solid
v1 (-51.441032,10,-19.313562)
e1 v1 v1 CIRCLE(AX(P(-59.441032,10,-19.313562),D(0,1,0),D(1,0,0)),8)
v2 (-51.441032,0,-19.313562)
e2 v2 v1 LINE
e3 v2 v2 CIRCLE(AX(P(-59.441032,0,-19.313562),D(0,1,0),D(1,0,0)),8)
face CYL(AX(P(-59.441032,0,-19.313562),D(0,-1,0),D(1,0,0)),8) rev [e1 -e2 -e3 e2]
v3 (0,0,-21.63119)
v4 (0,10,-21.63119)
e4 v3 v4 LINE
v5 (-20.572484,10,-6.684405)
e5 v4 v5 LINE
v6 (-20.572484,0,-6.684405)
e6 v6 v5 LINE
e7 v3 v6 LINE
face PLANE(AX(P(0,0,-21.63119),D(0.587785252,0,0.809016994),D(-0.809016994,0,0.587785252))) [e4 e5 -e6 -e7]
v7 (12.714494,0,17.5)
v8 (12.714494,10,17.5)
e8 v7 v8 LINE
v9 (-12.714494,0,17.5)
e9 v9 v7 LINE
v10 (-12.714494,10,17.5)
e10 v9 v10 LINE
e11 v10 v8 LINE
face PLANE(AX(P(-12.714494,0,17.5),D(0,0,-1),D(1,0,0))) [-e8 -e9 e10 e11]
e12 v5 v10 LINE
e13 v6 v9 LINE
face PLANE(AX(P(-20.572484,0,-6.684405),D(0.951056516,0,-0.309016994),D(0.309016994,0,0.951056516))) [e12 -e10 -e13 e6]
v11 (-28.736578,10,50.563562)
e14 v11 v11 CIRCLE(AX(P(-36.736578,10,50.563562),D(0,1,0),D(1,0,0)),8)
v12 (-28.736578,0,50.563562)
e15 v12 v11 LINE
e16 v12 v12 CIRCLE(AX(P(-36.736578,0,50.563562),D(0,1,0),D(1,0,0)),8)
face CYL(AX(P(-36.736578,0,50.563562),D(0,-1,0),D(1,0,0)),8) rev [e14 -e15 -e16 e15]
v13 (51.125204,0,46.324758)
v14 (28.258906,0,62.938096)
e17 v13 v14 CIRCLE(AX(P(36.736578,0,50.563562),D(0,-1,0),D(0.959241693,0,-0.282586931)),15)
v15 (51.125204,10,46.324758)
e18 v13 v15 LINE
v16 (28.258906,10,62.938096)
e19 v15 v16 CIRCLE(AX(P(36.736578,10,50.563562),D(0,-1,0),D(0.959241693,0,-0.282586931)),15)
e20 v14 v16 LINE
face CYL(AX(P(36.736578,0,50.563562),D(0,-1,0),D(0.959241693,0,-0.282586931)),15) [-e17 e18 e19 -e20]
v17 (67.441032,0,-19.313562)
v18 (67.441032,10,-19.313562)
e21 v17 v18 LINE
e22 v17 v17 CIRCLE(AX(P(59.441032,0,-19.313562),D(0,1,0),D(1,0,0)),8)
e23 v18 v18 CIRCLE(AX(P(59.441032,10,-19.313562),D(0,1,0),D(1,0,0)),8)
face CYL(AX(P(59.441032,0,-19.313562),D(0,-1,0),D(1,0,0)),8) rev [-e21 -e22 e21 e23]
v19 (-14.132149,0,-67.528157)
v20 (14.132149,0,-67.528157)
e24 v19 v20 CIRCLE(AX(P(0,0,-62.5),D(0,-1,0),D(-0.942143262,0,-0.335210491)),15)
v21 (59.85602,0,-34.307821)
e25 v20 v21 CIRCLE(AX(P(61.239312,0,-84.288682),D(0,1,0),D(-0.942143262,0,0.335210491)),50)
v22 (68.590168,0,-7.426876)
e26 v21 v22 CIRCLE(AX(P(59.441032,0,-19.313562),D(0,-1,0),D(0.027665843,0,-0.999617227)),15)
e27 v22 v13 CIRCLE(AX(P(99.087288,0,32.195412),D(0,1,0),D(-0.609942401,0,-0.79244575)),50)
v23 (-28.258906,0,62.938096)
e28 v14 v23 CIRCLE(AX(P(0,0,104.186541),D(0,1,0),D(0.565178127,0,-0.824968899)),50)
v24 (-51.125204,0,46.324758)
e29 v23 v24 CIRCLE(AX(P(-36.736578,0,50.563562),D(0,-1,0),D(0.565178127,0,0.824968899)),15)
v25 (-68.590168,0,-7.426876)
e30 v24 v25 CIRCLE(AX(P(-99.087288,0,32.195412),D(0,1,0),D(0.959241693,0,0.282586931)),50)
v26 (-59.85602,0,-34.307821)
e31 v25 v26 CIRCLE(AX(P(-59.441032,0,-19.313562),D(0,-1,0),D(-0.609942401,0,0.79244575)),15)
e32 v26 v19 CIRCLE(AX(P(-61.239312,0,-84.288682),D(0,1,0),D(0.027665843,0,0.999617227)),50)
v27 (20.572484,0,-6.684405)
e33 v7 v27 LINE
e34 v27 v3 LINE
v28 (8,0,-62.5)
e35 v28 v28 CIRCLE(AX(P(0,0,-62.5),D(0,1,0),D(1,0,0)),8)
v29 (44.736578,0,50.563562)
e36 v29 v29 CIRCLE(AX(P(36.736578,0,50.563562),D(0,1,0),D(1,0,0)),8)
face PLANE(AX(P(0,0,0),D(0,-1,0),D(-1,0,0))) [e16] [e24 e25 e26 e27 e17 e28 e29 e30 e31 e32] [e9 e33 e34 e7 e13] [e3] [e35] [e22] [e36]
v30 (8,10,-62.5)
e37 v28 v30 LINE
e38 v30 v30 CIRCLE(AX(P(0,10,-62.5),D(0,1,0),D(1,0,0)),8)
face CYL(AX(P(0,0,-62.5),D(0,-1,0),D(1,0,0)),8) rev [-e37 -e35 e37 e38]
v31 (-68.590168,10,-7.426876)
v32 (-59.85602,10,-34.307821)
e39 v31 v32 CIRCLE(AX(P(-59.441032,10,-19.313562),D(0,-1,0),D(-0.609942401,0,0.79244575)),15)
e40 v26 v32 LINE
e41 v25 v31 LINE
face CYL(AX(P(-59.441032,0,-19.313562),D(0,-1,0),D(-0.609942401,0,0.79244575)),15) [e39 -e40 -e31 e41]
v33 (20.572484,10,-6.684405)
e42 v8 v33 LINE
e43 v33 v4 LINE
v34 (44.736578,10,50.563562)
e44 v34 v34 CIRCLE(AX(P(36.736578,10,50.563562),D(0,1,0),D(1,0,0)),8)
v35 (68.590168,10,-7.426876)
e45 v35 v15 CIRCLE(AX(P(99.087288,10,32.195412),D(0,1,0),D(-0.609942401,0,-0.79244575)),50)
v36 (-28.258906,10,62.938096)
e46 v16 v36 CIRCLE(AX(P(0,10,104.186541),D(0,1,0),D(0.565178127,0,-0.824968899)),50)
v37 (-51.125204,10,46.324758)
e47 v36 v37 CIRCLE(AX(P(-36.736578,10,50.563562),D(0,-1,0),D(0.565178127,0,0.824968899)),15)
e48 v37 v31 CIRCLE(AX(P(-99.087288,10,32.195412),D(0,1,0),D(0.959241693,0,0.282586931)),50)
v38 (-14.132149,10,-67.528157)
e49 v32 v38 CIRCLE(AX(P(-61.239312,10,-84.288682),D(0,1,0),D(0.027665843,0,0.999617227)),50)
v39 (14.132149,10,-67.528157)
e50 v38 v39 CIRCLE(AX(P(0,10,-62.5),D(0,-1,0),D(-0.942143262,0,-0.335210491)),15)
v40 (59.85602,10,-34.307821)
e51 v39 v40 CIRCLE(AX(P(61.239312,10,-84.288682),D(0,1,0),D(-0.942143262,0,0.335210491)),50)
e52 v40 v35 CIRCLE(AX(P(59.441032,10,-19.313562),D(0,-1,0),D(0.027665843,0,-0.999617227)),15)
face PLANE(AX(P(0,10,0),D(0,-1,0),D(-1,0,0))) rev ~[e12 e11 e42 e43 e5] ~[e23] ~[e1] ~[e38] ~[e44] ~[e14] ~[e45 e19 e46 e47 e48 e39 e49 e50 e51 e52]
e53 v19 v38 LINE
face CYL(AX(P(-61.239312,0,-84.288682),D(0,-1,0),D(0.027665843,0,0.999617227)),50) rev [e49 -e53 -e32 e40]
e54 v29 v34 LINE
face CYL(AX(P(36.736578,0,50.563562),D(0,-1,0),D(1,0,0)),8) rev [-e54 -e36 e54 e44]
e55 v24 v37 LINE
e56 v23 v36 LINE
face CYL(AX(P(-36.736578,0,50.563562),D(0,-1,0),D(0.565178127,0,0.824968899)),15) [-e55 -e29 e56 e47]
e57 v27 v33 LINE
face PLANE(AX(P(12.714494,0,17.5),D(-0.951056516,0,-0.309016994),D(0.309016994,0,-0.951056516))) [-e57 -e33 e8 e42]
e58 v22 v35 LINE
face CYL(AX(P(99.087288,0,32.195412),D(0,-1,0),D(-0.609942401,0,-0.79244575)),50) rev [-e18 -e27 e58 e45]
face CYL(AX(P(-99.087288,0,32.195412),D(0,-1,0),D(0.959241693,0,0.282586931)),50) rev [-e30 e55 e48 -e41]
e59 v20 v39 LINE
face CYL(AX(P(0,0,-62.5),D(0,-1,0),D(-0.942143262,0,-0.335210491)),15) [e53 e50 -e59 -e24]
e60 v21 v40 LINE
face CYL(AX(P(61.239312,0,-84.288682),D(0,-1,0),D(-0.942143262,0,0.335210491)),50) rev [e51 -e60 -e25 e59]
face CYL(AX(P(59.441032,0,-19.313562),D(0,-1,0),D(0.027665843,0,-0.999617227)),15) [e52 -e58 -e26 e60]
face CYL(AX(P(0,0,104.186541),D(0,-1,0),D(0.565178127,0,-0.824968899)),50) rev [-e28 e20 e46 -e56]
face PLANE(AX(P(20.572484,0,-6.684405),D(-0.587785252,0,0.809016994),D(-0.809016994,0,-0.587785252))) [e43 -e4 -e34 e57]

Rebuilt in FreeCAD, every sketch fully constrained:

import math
import FreeCAD as App
import Part
import Sketcher
Q = App.Units.Quantity


def add_polygon(sketch, points):
    """Adds a closed chain of lines whose ends are joined by coincident constraints."""
    first, n = sketch.GeometryCount, len(points)
    for a, b in zip(points, points[1:] + points[:1]):
        sketch.addGeometry(Part.LineSegment(App.Vector(*a, 0), App.Vector(*b, 0)), False)
    for i in range(n):
        sketch.addConstraint(Sketcher.Constraint("Coincident", first + i, 2, first + (i + 1) % n, 1))

doc = App.newDocument("Part")
body = doc.addObject("PartDesign::Body", "Body")

# Sketch on XZ plane
sketch1 = body.newObject("Sketcher::SketchObject", "Sketch")
sketch1.AttachmentSupport = (doc.getObject("XZ_Plane"), [""])
sketch1.MapMode = "FlatFace"
sketch1.addGeometry(Part.ArcOfCircle(Part.Circle(App.Vector(61, -84, 0), App.Vector(0, 0, 1), 50), math.radians(92), math.radians(160)), False)  # 0
sketch1.addGeometry(Part.ArcOfCircle(Part.Circle(App.Vector(0, -62, 0), App.Vector(0, 0, 1), 15), math.radians(-160), math.radians(-20)), False)  # 1
sketch1.addGeometry(Part.ArcOfCircle(Part.Circle(App.Vector(-61, -84, 0), App.Vector(0, 0, 1), 50), math.radians(20), math.radians(88)), False)  # 2
sketch1.addGeometry(Part.ArcOfCircle(Part.Circle(App.Vector(-59, -19, 0), App.Vector(0, 0, 1), 15), math.radians(128), math.radians(268)), False)  # 3
sketch1.addGeometry(Part.ArcOfCircle(Part.Circle(App.Vector(-99, 32, 0), App.Vector(0, 0, 1), 50), math.radians(-52), math.radians(16)), False)  # 4
sketch1.addGeometry(Part.ArcOfCircle(Part.Circle(App.Vector(-37, 51, 0), App.Vector(0, 0, 1), 15), math.radians(56), math.radians(196)), False)  # 5
sketch1.addGeometry(Part.ArcOfCircle(Part.Circle(App.Vector(0, 104, 0), App.Vector(0, 0, 1), 50), math.radians(-124), math.radians(-56)), False)  # 6
sketch1.addGeometry(Part.ArcOfCircle(Part.Circle(App.Vector(37, 51, 0), App.Vector(0, 0, 1), 15), math.radians(-16), math.radians(124)), False)  # 7
sketch1.addGeometry(Part.ArcOfCircle(Part.Circle(App.Vector(99, 32, 0), App.Vector(0, 0, 1), 50), math.radians(164), math.radians(232)), False)  # 8
sketch1.addGeometry(Part.ArcOfCircle(Part.Circle(App.Vector(59, -19, 0), App.Vector(0, 0, 1), 15), math.radians(-88), math.radians(52)), False)  # 9
sketch1.addGeometry(Part.Circle(App.Vector(37, 51, 0), App.Vector(0, 0, 1), 8), False)  # 10
sketch1.addGeometry(Part.Circle(App.Vector(-37, 51, 0), App.Vector(0, 0, 1), 8), False)  # 11
add_polygon(sketch1, [(21, -7), (13, 18), (-13, 18), (-21, -7), (0, -22)])  # lines 12-16
sketch1.addGeometry(Part.Circle(App.Vector(59, -19, 0), App.Vector(0, 0, 1), 8), False)  # 17
sketch1.addGeometry(Part.Circle(App.Vector(-59, -19, 0), App.Vector(0, 0, 1), 8), False)  # 18
sketch1.addGeometry(Part.Circle(App.Vector(0, -62, 0), App.Vector(0, 0, 1), 8), False)  # 19
sketch1.addConstraint([
    Sketcher.Constraint("Tangent", 0, 2, 1, 2),
    Sketcher.Constraint("Tangent", 1, 1, 2, 1),
    Sketcher.Constraint("Tangent", 2, 2, 3, 2),
    Sketcher.Constraint("Tangent", 3, 1, 4, 1),
    Sketcher.Constraint("Tangent", 4, 2, 5, 2),
    Sketcher.Constraint("Tangent", 5, 1, 6, 1),
    Sketcher.Constraint("Tangent", 6, 2, 7, 2),
    Sketcher.Constraint("Tangent", 7, 1, 8, 1),
    Sketcher.Constraint("Tangent", 8, 2, 9, 2),
    Sketcher.Constraint("Tangent", 9, 1, 0, 1),
    Sketcher.Constraint("Horizontal", 13),
    Sketcher.Constraint("Coincident", 10, 3, 7, 3),
    Sketcher.Constraint("Coincident", 11, 3, 5, 3),
    Sketcher.Constraint("Coincident", 17, 3, 9, 3),
    Sketcher.Constraint("Coincident", 18, 3, 3, 3),
    Sketcher.Constraint("Coincident", 19, 3, 1, 3),
    Sketcher.Constraint("Equal", 0, 2),
    Sketcher.Constraint("Equal", 1, 3),
    Sketcher.Constraint("Equal", 2, 4),
    Sketcher.Constraint("Equal", 3, 5),
    Sketcher.Constraint("Equal", 4, 6),
    Sketcher.Constraint("Equal", 5, 7),
    Sketcher.Constraint("Equal", 6, 8),
    Sketcher.Constraint("Equal", 7, 9),
    Sketcher.Constraint("Equal", 10, 11),
    Sketcher.Constraint("Equal", 11, 17),
    Sketcher.Constraint("Equal", 17, 18),
    Sketcher.Constraint("Equal", 18, 19),
    Sketcher.Constraint("Symmetric", 0, 3, 2, 3, -2),
    Sketcher.Constraint("Symmetric", 5, 3, 7, 3, -2),
    Sketcher.Constraint("Symmetric", 14, 2, 16, 2, -2),
    Sketcher.Constraint("PointOnObject", 15, 2, -2),
    Sketcher.Constraint("Horizontal", 4, 3, 8, 3),
    Sketcher.Constraint("Equal", 12, 14),
    Sketcher.Constraint("Equal", 14, 15),
    Sketcher.Constraint("Diameter", 10, Q("16 mm")),
    Sketcher.Constraint("Radius", 0, Q("50 mm")),
    Sketcher.Constraint("Radius", 1, Q("15 mm")),
    Sketcher.Constraint("Angle", 12, Q("108 deg")),
    Sketcher.Constraint("Angle", 15, Q("-36 deg")),
    Sketcher.Constraint("DistanceY", 1, 3, -1, 1, Q("62.5 mm")),
    Sketcher.Constraint("DistanceY", -1, 1, 12, 2, Q("17.5 mm")),
    Sketcher.Constraint("DistanceX", 13, 2, 13, 1, Q("25.428988 mm")),
    Sketcher.Constraint("DistanceX", 4, 3, 0, 3, Q("160.3266 mm")),
    Sketcher.Constraint("DistanceY", 0, 3, -1, 1, Q("84.288682 mm")),
    Sketcher.Constraint("DistanceY", -1, 1, 4, 3, Q("32.195412 mm")),
    Sketcher.Constraint("DistanceX", 5, 3, -1, 1, Q("36.736578 mm")),
])
pad1 = body.newObject("PartDesign::Pad", "Pad")
pad1.Profile = sketch1
pad1.Length = 10
pad1.Reversed = True

doc.recompute()
